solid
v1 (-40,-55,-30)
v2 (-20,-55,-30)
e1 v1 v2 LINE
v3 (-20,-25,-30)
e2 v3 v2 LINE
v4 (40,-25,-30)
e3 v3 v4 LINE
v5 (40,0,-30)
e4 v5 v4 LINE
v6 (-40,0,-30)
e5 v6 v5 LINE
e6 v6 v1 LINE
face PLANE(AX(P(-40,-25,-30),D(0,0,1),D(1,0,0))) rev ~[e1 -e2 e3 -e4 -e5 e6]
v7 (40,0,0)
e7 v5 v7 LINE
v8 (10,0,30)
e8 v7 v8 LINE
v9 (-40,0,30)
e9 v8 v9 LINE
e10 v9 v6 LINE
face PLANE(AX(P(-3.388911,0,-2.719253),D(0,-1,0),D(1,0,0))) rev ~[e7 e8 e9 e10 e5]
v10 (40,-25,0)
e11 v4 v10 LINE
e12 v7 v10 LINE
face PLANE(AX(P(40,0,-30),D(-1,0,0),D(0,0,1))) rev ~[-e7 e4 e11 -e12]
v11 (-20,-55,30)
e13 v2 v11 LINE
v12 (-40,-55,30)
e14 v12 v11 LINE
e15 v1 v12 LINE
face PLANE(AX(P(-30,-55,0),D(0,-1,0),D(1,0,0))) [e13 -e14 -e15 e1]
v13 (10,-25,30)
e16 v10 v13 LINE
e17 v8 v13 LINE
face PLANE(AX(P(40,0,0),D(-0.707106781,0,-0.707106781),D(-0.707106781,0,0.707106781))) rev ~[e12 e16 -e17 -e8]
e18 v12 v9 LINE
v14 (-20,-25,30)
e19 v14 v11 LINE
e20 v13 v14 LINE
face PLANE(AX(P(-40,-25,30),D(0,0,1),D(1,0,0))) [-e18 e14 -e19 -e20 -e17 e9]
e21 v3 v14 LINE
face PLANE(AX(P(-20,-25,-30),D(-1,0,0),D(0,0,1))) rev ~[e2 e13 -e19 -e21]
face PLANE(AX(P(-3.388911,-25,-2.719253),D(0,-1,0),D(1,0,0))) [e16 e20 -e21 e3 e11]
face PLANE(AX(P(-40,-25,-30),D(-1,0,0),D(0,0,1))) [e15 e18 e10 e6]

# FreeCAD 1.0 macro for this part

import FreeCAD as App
import Part
import Sketcher
from FreeCAD import Vector
Q = App.Units.Quantity

doc = App.newDocument("Part")
body = doc.addObject("PartDesign::Body", "Body")

# Sketch on XZ plane
sketch1 = body.newObject("Sketcher::SketchObject", "Sketch")
sketch1.AttachmentSupport = (doc.getObject("XZ_Plane"), [""])
sketch1.MapMode = "FlatFace"
sketch1.addGeometry([
    Part.LineSegment(Vector(-40, 30, 0), Vector(-40, -30, 0)),  # 0
    Part.LineSegment(Vector(-40, -30, 0), Vector(40, -30, 0)),  # 1
    Part.LineSegment(Vector(40, -30, 0), Vector(40, 0, 0)),  # 2
    Part.LineSegment(Vector(40, 0, 0), Vector(10, 30, 0)),  # 3
    Part.LineSegment(Vector(10, 30, 0), Vector(-40, 30, 0)),  # 4
], False)
sketch1.addConstraint([
    Sketcher.Constraint("Coincident", 0, 2, 1, 1),
    Sketcher.Constraint("Coincident", 1, 2, 2, 1),
    Sketcher.Constraint("Coincident", 2, 2, 3, 1),
    Sketcher.Constraint("Coincident", 3, 2, 4, 1),
    Sketcher.Constraint("Coincident", 4, 2, 0, 1),
    Sketcher.Constraint("Vertical", 0),
    Sketcher.Constraint("Horizontal", 1),
    Sketcher.Constraint("Vertical", 2),
    Sketcher.Constraint("Horizontal", 4),
    Sketcher.Constraint("Symmetric", 1, 2, 4, 2, -1, 1),
    Sketcher.Constraint("PointOnObject", 2, 2, -1),
    Sketcher.Constraint("DistanceX", 1, 1, 1, 2, Q("80 mm")),
    Sketcher.Constraint("DistanceX", 4, 2, 4, 1, Q("50 mm")),
    Sketcher.Constraint("DistanceY", 0, 2, 0, 1, Q("60 mm")),
])
pad1 = body.newObject("PartDesign::Pad", "Pad")
pad1.Profile = sketch1
pad1.Length = 25

# Sketch on XZ plane
sketch2 = body.newObject("Sketcher::SketchObject", "Sketch001")
sketch2.AttachmentSupport = (doc.getObject("XZ_Plane"), [""])
sketch2.MapMode = "FlatFace"
sketch2.AttachmentOffset = App.Placement(Vector(0, 0, 25), App.Rotation())
sketch2.addGeometry([
    Part.LineSegment(Vector(-40, 30, 0), Vector(-40, -30, 0)),
    Part.LineSegment(Vector(-40, -30, 0), Vector(-20, -30, 0)),
    Part.LineSegment(Vector(-20, -30, 0), Vector(-20, 30, 0)),
    Part.LineSegment(Vector(-20, 30, 0), Vector(-40, 30, 0)),
], False)
sketch2.addConstraint([
    Sketcher.Constraint("Coincident", 0, 2, 1, 1),
    Sketcher.Constraint("Coincident", 1, 2, 2, 1),
    Sketcher.Constraint("Coincident", 2, 2, 3, 1),
    Sketcher.Constraint("Coincident", 3, 2, 0, 1),
    Sketcher.Constraint("Vertical", 0),
    Sketcher.Constraint("Horizontal", 1),
    Sketcher.Constraint("Vertical", 2),
    Sketcher.Constraint("Horizontal", 3),
    Sketcher.Constraint("DistanceX", 1, 1, 1, 2, Q("20 mm")),
    Sketcher.Constraint("DistanceY", 0, 2, 0, 1, Q("60 mm")),
    Sketcher.Constraint("DistanceX", 0, 2, -1, 1, Q("40 mm")),
    Sketcher.Constraint("DistanceY", 0, 2, -1, 1, Q("30 mm")),
])
pad2 = body.newObject("PartDesign::Pad", "Pad001")
pad2.Profile = sketch2
pad2.Length = 30

doc.recompute()
